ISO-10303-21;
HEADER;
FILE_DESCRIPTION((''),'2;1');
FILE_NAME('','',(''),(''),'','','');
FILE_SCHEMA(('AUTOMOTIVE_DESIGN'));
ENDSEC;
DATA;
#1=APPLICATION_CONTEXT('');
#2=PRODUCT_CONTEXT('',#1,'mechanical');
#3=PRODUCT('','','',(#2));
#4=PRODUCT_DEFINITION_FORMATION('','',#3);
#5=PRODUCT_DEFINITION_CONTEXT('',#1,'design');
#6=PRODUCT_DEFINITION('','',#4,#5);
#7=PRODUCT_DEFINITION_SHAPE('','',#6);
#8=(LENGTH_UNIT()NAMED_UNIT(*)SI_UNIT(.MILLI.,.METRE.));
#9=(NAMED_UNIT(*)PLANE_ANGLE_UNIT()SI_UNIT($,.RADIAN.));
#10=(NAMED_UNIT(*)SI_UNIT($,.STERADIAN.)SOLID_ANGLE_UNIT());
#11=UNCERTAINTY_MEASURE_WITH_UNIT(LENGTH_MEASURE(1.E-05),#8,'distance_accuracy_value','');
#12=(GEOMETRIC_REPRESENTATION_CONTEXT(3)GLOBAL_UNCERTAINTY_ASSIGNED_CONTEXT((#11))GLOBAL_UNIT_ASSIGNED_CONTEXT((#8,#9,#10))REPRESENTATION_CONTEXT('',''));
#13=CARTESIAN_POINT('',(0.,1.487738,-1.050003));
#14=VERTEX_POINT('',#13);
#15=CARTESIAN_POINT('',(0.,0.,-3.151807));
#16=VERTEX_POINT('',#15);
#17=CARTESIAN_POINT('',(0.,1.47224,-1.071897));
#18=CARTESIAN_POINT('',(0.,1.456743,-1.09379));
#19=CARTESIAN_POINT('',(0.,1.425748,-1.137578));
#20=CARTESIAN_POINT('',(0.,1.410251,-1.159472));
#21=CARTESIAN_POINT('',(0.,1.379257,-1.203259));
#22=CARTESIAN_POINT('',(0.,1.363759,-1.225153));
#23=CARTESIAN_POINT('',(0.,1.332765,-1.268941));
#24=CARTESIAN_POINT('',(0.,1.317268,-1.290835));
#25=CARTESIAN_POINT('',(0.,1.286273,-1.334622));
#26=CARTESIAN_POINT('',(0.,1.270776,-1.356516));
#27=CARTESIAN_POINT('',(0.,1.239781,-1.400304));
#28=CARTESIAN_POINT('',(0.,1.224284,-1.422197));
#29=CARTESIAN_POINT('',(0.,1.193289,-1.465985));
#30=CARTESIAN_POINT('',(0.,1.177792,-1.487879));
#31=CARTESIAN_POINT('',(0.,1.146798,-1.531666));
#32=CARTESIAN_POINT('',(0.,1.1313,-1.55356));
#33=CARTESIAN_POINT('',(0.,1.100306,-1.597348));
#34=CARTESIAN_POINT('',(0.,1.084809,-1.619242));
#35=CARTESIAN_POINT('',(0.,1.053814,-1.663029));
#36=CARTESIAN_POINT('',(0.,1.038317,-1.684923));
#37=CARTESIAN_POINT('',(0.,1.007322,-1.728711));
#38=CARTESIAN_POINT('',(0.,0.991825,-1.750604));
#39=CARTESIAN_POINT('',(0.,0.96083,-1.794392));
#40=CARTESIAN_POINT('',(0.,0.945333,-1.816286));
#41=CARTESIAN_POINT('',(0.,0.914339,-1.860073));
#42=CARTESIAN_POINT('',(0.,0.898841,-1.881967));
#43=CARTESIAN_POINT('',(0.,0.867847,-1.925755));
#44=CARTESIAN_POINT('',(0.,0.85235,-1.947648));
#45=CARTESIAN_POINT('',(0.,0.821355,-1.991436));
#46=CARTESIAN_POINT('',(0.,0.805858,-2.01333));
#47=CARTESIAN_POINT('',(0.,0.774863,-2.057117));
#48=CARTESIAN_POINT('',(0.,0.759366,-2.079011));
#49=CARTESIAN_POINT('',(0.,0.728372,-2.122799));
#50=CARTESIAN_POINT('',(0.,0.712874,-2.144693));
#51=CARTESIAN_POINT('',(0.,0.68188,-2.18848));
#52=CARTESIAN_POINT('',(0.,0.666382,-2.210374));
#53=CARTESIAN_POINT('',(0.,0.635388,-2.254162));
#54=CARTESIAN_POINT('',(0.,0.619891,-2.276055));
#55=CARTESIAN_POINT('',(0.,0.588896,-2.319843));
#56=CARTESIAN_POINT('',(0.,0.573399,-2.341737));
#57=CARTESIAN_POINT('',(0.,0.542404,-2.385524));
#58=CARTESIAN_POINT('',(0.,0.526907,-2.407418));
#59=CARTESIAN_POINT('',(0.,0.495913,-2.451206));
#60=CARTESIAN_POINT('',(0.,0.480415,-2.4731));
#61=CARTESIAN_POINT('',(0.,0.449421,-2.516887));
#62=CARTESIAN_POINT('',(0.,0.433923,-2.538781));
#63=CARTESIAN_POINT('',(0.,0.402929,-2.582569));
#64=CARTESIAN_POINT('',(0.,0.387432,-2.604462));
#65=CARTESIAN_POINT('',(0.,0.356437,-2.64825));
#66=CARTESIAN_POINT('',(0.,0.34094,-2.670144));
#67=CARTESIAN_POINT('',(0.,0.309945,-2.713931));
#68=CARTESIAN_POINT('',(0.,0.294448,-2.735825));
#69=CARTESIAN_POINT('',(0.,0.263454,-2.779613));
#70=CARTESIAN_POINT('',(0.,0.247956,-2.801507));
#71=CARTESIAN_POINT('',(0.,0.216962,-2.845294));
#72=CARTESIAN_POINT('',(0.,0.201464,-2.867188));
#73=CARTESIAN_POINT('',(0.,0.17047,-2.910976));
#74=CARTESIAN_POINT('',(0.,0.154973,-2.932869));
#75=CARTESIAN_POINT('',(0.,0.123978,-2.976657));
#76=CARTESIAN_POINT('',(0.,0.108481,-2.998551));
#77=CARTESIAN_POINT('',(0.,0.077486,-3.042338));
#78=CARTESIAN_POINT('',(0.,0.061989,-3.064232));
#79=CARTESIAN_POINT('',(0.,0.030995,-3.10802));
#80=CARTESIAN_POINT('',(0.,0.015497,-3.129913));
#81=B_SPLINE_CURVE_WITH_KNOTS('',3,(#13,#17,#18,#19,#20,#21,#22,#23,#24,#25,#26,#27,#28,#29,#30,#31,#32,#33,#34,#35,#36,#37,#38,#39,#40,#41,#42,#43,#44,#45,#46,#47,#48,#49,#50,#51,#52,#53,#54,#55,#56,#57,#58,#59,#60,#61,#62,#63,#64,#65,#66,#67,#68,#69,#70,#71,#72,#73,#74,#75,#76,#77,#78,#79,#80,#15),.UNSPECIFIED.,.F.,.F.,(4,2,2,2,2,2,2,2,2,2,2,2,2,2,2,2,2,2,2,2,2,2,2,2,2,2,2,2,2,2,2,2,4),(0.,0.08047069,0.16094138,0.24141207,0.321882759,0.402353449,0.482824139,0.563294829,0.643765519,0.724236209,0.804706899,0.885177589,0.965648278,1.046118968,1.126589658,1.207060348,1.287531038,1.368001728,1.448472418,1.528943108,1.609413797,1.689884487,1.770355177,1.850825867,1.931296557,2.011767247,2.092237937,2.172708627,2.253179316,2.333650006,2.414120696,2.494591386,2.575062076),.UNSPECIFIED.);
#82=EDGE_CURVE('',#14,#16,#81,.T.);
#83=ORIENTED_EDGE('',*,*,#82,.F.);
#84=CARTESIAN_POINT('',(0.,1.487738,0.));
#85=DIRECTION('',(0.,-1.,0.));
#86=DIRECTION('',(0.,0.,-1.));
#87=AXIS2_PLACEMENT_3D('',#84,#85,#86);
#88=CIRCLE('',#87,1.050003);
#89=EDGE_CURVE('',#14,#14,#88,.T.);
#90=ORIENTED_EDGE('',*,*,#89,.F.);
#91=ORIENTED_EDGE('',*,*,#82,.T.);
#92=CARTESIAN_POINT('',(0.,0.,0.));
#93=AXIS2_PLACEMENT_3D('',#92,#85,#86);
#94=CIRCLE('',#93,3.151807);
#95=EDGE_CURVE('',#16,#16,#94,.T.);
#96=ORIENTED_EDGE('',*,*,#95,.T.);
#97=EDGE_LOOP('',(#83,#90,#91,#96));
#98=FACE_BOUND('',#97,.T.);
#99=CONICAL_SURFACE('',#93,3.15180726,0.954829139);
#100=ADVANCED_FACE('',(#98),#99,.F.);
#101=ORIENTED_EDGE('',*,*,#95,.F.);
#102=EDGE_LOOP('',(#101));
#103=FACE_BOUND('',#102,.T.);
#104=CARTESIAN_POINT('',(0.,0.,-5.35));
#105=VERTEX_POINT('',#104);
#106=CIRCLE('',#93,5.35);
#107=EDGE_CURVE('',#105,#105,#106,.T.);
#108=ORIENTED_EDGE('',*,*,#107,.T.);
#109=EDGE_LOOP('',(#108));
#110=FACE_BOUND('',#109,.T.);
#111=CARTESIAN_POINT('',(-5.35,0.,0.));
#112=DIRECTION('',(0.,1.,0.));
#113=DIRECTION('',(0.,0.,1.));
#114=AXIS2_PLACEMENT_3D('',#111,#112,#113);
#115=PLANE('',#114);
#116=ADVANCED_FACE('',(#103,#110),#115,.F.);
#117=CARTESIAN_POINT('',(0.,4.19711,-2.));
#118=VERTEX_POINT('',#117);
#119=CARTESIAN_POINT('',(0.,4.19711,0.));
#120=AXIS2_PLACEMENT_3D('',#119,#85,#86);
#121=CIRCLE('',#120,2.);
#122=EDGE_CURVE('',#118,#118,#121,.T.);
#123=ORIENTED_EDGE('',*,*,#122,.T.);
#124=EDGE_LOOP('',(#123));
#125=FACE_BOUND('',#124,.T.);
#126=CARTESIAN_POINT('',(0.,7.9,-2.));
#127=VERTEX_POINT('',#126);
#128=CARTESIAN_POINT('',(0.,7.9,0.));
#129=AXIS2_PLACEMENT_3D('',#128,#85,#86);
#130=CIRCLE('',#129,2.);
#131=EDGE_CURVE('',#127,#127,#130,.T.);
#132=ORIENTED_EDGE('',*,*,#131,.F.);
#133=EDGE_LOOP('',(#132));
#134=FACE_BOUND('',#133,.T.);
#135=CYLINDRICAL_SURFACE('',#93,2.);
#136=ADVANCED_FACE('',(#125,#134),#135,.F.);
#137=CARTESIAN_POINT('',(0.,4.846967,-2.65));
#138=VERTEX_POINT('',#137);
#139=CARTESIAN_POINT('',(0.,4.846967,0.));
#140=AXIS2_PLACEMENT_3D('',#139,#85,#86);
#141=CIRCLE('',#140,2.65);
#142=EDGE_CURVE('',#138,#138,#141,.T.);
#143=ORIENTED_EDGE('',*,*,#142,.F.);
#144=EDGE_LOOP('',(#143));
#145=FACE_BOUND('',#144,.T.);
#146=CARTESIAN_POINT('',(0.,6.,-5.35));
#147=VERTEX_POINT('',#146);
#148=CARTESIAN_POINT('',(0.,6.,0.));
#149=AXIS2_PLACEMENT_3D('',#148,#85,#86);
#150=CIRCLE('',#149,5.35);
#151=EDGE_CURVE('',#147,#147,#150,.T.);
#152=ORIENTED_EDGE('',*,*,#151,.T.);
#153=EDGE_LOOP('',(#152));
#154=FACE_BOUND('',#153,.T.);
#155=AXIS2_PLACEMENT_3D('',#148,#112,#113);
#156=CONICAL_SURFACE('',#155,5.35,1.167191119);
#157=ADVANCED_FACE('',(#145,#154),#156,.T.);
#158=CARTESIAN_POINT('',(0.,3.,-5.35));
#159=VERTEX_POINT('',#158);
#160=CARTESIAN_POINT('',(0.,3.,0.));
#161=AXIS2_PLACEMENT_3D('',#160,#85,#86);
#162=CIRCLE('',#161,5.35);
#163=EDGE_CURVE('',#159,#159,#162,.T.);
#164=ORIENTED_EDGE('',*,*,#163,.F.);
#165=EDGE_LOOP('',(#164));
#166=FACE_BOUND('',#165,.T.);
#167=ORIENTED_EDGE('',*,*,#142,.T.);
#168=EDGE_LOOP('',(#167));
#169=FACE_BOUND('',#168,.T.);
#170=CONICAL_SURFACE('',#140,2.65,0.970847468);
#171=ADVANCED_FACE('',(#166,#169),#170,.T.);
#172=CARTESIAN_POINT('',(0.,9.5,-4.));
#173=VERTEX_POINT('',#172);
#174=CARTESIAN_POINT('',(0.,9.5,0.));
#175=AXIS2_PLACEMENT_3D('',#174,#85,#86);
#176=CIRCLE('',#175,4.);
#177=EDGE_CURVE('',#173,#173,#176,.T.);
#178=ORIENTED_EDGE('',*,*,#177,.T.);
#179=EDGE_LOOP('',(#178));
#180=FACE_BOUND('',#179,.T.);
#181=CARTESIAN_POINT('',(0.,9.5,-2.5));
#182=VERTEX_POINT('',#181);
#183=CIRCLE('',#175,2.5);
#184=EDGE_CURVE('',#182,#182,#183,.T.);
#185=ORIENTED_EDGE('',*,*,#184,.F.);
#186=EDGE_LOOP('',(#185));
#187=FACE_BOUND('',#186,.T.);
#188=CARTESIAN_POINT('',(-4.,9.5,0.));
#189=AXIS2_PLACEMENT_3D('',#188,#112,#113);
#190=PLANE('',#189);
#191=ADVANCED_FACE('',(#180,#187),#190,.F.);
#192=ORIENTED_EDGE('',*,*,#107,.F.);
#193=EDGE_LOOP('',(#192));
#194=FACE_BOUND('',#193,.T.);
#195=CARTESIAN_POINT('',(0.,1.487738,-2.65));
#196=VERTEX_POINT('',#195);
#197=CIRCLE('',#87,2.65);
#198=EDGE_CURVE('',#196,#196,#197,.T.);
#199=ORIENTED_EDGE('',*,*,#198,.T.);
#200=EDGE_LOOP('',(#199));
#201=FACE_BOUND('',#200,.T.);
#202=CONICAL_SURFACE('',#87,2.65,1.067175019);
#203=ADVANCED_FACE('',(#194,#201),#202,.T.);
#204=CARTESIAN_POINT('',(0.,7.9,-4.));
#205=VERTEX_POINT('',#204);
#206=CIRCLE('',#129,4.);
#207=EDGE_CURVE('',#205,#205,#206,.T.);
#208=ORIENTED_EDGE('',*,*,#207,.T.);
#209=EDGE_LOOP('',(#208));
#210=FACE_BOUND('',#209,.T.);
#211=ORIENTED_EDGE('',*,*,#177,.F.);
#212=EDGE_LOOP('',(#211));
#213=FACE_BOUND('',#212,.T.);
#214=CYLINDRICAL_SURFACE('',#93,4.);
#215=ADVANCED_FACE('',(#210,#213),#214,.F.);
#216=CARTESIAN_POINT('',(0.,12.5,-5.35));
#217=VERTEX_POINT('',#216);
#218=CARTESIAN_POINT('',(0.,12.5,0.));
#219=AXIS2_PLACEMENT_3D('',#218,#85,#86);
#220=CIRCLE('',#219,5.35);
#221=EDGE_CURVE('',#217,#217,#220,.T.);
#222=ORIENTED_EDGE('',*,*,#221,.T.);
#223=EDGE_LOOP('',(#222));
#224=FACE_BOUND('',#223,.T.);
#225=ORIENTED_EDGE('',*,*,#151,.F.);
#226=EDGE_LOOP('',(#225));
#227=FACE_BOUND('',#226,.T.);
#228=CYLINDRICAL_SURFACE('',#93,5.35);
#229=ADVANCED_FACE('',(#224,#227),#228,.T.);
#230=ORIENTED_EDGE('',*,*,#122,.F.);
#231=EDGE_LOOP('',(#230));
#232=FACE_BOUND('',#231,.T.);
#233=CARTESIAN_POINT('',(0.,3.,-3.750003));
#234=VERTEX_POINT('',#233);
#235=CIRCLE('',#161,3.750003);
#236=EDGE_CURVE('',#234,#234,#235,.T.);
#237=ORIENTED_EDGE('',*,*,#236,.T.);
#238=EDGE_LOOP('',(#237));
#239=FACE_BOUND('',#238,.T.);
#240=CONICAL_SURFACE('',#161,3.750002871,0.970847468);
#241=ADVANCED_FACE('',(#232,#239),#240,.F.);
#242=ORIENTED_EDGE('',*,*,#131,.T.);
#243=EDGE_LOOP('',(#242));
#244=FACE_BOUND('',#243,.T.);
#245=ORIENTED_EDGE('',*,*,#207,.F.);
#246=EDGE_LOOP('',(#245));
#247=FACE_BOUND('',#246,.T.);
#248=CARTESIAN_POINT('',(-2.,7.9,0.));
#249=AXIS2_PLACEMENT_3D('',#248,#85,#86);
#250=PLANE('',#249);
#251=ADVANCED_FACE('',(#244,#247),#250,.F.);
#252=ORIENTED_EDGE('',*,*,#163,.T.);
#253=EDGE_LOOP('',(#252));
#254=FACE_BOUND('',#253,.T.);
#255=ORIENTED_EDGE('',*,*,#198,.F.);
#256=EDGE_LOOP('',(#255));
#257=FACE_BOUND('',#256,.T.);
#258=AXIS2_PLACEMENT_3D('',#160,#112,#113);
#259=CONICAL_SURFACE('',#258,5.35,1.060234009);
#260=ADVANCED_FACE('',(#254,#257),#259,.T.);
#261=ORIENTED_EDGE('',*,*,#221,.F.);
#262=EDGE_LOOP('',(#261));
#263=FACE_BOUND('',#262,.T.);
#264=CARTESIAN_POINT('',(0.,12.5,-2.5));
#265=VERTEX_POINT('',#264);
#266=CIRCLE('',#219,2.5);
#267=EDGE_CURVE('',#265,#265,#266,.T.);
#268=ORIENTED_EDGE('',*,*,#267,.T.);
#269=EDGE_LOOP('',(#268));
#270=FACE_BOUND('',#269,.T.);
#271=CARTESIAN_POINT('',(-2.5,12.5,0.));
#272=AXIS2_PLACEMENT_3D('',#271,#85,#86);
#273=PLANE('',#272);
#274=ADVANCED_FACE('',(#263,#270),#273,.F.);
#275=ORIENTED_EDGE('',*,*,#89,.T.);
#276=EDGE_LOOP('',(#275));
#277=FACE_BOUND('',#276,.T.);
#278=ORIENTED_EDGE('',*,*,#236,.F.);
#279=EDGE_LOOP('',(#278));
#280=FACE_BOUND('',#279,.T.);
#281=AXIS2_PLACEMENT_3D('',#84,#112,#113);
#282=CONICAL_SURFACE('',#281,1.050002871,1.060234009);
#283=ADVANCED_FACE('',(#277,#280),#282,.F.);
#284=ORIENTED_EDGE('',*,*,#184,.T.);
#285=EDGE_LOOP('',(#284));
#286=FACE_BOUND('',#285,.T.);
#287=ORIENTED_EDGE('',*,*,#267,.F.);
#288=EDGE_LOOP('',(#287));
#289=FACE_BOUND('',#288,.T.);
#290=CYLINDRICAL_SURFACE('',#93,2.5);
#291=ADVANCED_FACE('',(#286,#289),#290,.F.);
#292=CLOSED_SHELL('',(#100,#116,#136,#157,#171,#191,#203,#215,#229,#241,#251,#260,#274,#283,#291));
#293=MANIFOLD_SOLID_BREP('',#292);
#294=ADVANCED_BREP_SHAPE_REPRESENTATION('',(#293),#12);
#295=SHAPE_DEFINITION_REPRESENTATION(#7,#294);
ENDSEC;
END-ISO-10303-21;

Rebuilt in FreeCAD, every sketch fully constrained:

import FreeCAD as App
import Part
import Sketcher


def add_polygon(sketch, points):
    """Adds a closed chain of lines whose ends are joined by coincident constraints."""
    first, n = sketch.GeometryCount, len(points)
    for a, b in zip(points, points[1:] + points[:1]):
        sketch.addGeometry(Part.LineSegment(App.Vector(*a, 0), App.Vector(*b, 0)), False)
    for i in range(n):
        sketch.addConstraint(Sketcher.Constraint("Coincident", first + i, 2, first + (i + 1) % n, 1))

doc = App.newDocument("Part")
params = doc.addObject("Spreadsheet::Sheet", "Params")
for row, (alias, value) in enumerate([
    ("sketch1_width", "2 mm"),
    ("sketch1_height", "3 mm"),
    ("sketch1_width2", "1.5 mm"),
    ("sketch1_height2", "6.5 mm"),
    ("sketch1_height3", "1.6 mm"),
    ("revolution_angle", "360 deg"),
], start=1):
    params.set(f"A{row}", alias)
    params.set(f"B{row}", "=" + value)
    params.setAlias(f"B{row}", alias)

body = doc.addObject("PartDesign::Body", "Body")

# Sketch on XY plane
sketch1 = body.newObject("Sketcher::SketchObject", "Sketch")
sketch1.AttachmentSupport = (doc.getObject("XY_Plane"), [""])
sketch1.MapMode = "FlatFace"
add_polygon(sketch1, [(-2.5, 12.5), (-5.3, 12.5), (-5.3, 6), (-2.6, 4.8), (-5.3, 3), (-2.6, 1.5), (-5.3, 0), (-3.2, 0), (-1.1, 1.5), (-3.8, 3), (-2, 4.2), (-2, 7.9), (-4, 7.9), (-4, 9.5), (-2.5, 9.5)])  # lines 0-14
sketch1.addConstraint([
    Sketcher.Constraint("Horizontal", 0),
    Sketcher.Constraint("Vertical", 1),
    Sketcher.Constraint("Horizontal", 6),
    Sketcher.Constraint("Vertical", 10),
    Sketcher.Constraint("Horizontal", 11),
    Sketcher.Constraint("Vertical", 12),
    Sketcher.Constraint("Horizontal", 13),
    Sketcher.Constraint("Vertical", 14),
    Sketcher.Constraint("PointOnObject", 5, 2, -1),
    Sketcher.Constraint("Parallel", 4, 8),
    Sketcher.Constraint("Parallel", 3, 9),
    Sketcher.Constraint("Horizontal", 4, 2, 7, 2),
    Sketcher.Constraint("Horizontal", 3, 2, 8, 2),
    Sketcher.Constraint("Vertical", 1, 2, 3, 2),
    Sketcher.Constraint("Vertical", 2, 2, 4, 2),
    Sketcher.Constraint("Vertical", 3, 2, 5, 2),
    Sketcher.Constraint("DistanceX", 11, 2, 11, 1, 2.0),
    Sketcher.Constraint("DistanceY", 14, 1, 14, 2, 3.0),
    Sketcher.Constraint("DistanceX", 13, 1, 13, 2, 1.5),
    Sketcher.Constraint("DistanceY", 1, 2, 1, 1, 6.5),
    Sketcher.Constraint("DistanceY", 12, 1, 12, 2, 1.6),
    Sketcher.Constraint("DistanceY", -1, 1, 1, 2, 6.0),
    Sketcher.Constraint("DistanceY", -1, 1, 3, 2, 3.0),
    Sketcher.Constraint("DistanceX", 9, 2, -1, 1, 2.0),
    Sketcher.Constraint("DistanceX", 0, 2, 0, 1, 2.85),
    Sketcher.Constraint("DistanceX", 1, 2, 2, 2, 2.7),
    Sketcher.Constraint("DistanceY", 10, 1, 10, 2, 3.70289),
    Sketcher.Constraint("Distance", 3, 3.271282),
    Sketcher.Constraint("DistanceX", 6, 1, 6, 2, 2.198193),
    Sketcher.Constraint("DistanceY", 4, 2, 2, 2, 3.359229),
])
sketch1.setExpression("Constraints[31]", "Params.sketch1_width")
sketch1.setExpression("Constraints[32]", "Params.sketch1_height")
sketch1.setExpression("Constraints[33]", "Params.sketch1_width2")
sketch1.setExpression("Constraints[34]", "Params.sketch1_height2")
sketch1.setExpression("Constraints[35]", "Params.sketch1_height3")
revolution = body.newObject("PartDesign::Revolution", "Revolution")
revolution.Profile = sketch1
revolution.ReferenceAxis = (sketch1, ["V_Axis"])
revolution.setExpression("Angle", "Params.revolution_angle")

doc.recompute()
